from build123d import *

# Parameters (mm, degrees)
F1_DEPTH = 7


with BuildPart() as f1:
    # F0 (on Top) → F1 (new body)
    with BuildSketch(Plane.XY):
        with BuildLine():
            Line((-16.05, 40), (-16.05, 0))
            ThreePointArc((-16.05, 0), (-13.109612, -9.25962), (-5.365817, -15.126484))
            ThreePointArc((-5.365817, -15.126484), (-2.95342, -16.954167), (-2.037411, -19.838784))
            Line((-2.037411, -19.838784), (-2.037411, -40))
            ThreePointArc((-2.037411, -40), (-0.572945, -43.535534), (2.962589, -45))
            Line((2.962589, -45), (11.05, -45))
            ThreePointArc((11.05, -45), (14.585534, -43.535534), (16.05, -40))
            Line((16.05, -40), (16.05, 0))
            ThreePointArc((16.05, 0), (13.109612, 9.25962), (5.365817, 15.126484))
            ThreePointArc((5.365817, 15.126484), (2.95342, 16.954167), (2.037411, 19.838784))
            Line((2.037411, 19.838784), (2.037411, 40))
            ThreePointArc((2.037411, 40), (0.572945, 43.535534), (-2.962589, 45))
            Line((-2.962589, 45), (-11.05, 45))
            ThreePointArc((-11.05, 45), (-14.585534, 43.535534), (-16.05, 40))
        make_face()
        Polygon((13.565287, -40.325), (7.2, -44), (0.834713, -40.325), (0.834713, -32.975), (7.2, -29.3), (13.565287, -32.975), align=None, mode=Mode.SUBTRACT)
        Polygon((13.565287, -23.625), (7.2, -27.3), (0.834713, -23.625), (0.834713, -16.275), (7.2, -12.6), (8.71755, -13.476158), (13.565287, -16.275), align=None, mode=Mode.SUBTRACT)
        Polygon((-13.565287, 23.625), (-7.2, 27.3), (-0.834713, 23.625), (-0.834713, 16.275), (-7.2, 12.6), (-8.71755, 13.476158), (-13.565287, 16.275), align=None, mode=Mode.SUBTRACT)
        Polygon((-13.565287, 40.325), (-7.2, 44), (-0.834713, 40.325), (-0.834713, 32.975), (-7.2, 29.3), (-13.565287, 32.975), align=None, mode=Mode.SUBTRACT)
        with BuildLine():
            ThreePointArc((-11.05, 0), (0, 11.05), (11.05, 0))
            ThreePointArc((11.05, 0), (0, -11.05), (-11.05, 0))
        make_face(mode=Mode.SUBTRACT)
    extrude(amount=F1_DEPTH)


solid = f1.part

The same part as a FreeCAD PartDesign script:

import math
import FreeCAD as App
import Part
import Sketcher
from FreeCAD import Vector
Q = App.Units.Quantity

doc = App.newDocument("Part")
params = doc.addObject("Spreadsheet::Sheet", "Params")
for row, (alias, value) in enumerate([
    ("sketch1_radius", "5 mm"),
    ("sketch1_diameter", "22.1 mm"),
    ("sketch1_height", "40 mm"),
    ("sketch1_height2", "7.35 mm"),
    ("pad1_length", "7 mm"),
], start=1):
    params.set(f"A{row}", alias)
    params.set(f"B{row}", "=" + value)
    params.setAlias(f"B{row}", alias)

body = doc.addObject("PartDesign::Body", "Body")

# Sketch on XY plane
sketch1 = body.newObject("Sketcher::SketchObject", "Sketch")
sketch1.AttachmentSupport = (doc.getObject("XY_Plane"), [""])
sketch1.MapMode = "FlatFace"
sketch1.addGeometry(Part.LineSegment(Vector(-16.1, 40, 0), Vector(-16.1, 0, 0)), False)
sketch1.addGeometry(Part.ArcOfCircle(Part.Circle(Vector(0, 0, 0), Vector(0, 0, 1), 16.1), math.radians(-180), math.radians(-110)), False)
sketch1.addGeometry(Part.ArcOfCircle(Part.Circle(Vector(-7, -19.8, 0), Vector(0, 0, 1), 5), math.radians(0), math.radians(70)), False)
sketch1.addGeometry(Part.LineSegment(Vector(-2, -19.8, 0), Vector(-2, -40, 0)), False)
sketch1.addGeometry(Part.ArcOfCircle(Part.Circle(Vector(3, -40, 0), Vector(0, 0, 1), 5), math.radians(180), math.radians(270)), False)
sketch1.addGeometry(Part.LineSegment(Vector(3, -45, 0), Vector(11.1, -45, 0)), False)
sketch1.addGeometry(Part.ArcOfCircle(Part.Circle(Vector(11.1, -40, 0), Vector(0, 0, 1), 5), math.radians(-90), math.radians(0)), False)
sketch1.addGeometry(Part.LineSegment(Vector(16.1, -40, 0), Vector(16.1, 0, 0)), False)
sketch1.addGeometry(Part.ArcOfCircle(Part.Circle(Vector(0, 0, 0), Vector(0, 0, 1), 16.1), math.radians(0), math.radians(70)), False)
sketch1.addGeometry(Part.ArcOfCircle(Part.Circle(Vector(7, 19.8, 0), Vector(0, 0, 1), 5), math.radians(-180), math.radians(-110)), False)
sketch1.addGeometry(Part.LineSegment(Vector(2, 19.8, 0), Vector(2, 40, 0)), False)
sketch1.addGeometry(Part.ArcOfCircle(Part.Circle(Vector(-3, 40, 0), Vector(0, 0, 1), 5), math.radians(0), math.radians(90)), False)
sketch1.addGeometry(Part.LineSegment(Vector(-3, 45, 0), Vector(-11.1, 45, 0)), False)
sketch1.addGeometry(Part.ArcOfCircle(Part.Circle(Vector(-11.1, 40, 0), Vector(0, 0, 1), 5), math.radians(90), math.radians(180)), False)
sketch1.addGeometry(Part.LineSegment(Vector(13.6, -33, 0), Vector(13.6, -40.3, 0)), False)
sketch1.addGeometry(Part.LineSegment(Vector(13.6, -40.3, 0), Vector(7.2, -44, 0)), False)
sketch1.addGeometry(Part.LineSegment(Vector(7.2, -44, 0), Vector(0.8, -40.3, 0)), False)
sketch1.addGeometry(Part.LineSegment(Vector(0.8, -40.3, 0), Vector(0.8, -33, 0)), False)
sketch1.addGeometry(Part.LineSegment(Vector(0.8, -33, 0), Vector(7.2, -29.3, 0)), False)
sketch1.addGeometry(Part.LineSegment(Vector(7.2, -29.3, 0), Vector(13.6, -33, 0)), False)
sketch1.addGeometry(Part.LineSegment(Vector(13.6, -16.3, 0), Vector(13.6, -23.6, 0)), False)
sketch1.addGeometry(Part.LineSegment(Vector(13.6, -23.6, 0), Vector(7.2, -27.3, 0)), False)
sketch1.addGeometry(Part.LineSegment(Vector(7.2, -27.3, 0), Vector(0.8, -23.6, 0)), False)
sketch1.addGeometry(Part.LineSegment(Vector(0.8, -23.6, 0), Vector(0.8, -16.3, 0)), False)
sketch1.addGeometry(Part.LineSegment(Vector(0.8, -16.3, 0), Vector(7.2, -12.6, 0)), False)
sketch1.addGeometry(Part.LineSegment(Vector(7.2, -12.6, 0), Vector(8.7, -13.5, 0)), False)
sketch1.addGeometry(Part.LineSegment(Vector(8.7, -13.5, 0), Vector(13.6, -16.3, 0)), False)
sketch1.addGeometry(Part.LineSegment(Vector(-13.6, 16.3, 0), Vector(-13.6, 23.6, 0)), False)
sketch1.addGeometry(Part.LineSegment(Vector(-13.6, 23.6, 0), Vector(-7.2, 27.3, 0)), False)
sketch1.addGeometry(Part.LineSegment(Vector(-7.2, 27.3, 0), Vector(-0.8, 23.6, 0)), False)
sketch1.addGeometry(Part.LineSegment(Vector(-0.8, 23.6, 0), Vector(-0.8, 16.3, 0)), False)
sketch1.addGeometry(Part.LineSegment(Vector(-0.8, 16.3, 0), Vector(-7.2, 12.6, 0)), False)
sketch1.addGeometry(Part.LineSegment(Vector(-7.2, 12.6, 0), Vector(-8.7, 13.5, 0)), False)
sketch1.addGeometry(Part.LineSegment(Vector(-8.7, 13.5, 0), Vector(-13.6, 16.3, 0)), False)
sketch1.addGeometry(Part.LineSegment(Vector(-13.6, 33, 0), Vector(-13.6, 40.3, 0)), False)
sketch1.addGeometry(Part.LineSegment(Vector(-13.6, 40.3, 0), Vector(-7.2, 44, 0)), False)
sketch1.addGeometry(Part.LineSegment(Vector(-7.2, 44, 0), Vector(-0.8, 40.3, 0)), False)
sketch1.addGeometry(Part.LineSegment(Vector(-0.8, 40.3, 0), Vector(-0.8, 33, 0)), False)
sketch1.addGeometry(Part.LineSegment(Vector(-0.8, 33, 0), Vector(-7.2, 29.3, 0)), False)
sketch1.addGeometry(Part.LineSegment(Vector(-7.2, 29.3, 0), Vector(-13.6, 33, 0)), False)
sketch1.addGeometry(Part.Circle(Vector(0, 0, 0), Vector(0, 0, 1), 11.1), False)
sketch1.addConstraint(Sketcher.Constraint("Tangent", 0, 2, 1, 1))
sketch1.addConstraint(Sketcher.Constraint("Tangent", 1, 2, 2, 2))
sketch1.addConstraint(Sketcher.Constraint("Tangent", 2, 1, 3, 1))
sketch1.addConstraint(Sketcher.Constraint("Tangent", 3, 2, 4, 1))
sketch1.addConstraint(Sketcher.Constraint("Tangent", 4, 2, 5, 1))
sketch1.addConstraint(Sketcher.Constraint("Tangent", 5, 2, 6, 1))
sketch1.addConstraint(Sketcher.Constraint("Tangent", 6, 2, 7, 1))
sketch1.addConstraint(Sketcher.Constraint("Tangent", 7, 2, 8, 1))
sketch1.addConstraint(Sketcher.Constraint("Tangent", 8, 2, 9, 2))
sketch1.addConstraint(Sketcher.Constraint("Tangent", 9, 1, 10, 1))
sketch1.addConstraint(Sketcher.Constraint("Tangent", 10, 2, 11, 1))
sketch1.addConstraint(Sketcher.Constraint("Tangent", 11, 2, 12, 1))
sketch1.addConstraint(Sketcher.Constraint("Tangent", 12, 2, 13, 1))
sketch1.addConstraint(Sketcher.Constraint("Tangent", 13, 2, 0, 1))
sketch1.addConstraint(Sketcher.Constraint("Coincident", 14, 2, 15, 1))
sketch1.addConstraint(Sketcher.Constraint("Coincident", 15, 2, 16, 1))
sketch1.addConstraint(Sketcher.Constraint("Coincident", 16, 2, 17, 1))
sketch1.addConstraint(Sketcher.Constraint("Coincident", 17, 2, 18, 1))
sketch1.addConstraint(Sketcher.Constraint("Coincident", 18, 2, 19, 1))
sketch1.addConstraint(Sketcher.Constraint("Coincident", 19, 2, 14, 1))
sketch1.addConstraint(Sketcher.Constraint("Coincident", 20, 2, 21, 1))
sketch1.addConstraint(Sketcher.Constraint("Coincident", 21, 2, 22, 1))
sketch1.addConstraint(Sketcher.Constraint("Coincident", 22, 2, 23, 1))
sketch1.addConstraint(Sketcher.Constraint("Coincident", 23, 2, 24, 1))
sketch1.addConstraint(Sketcher.Constraint("Coincident", 24, 2, 25, 1))
sketch1.addConstraint(Sketcher.Constraint("Coincident", 25, 2, 26, 1))
sketch1.addConstraint(Sketcher.Constraint("Coincident", 26, 2, 20, 1))
sketch1.addConstraint(Sketcher.Constraint("Coincident", 27, 2, 28, 1))
sketch1.addConstraint(Sketcher.Constraint("Coincident", 28, 2, 29, 1))
sketch1.addConstraint(Sketcher.Constraint("Coincident", 29, 2, 30, 1))
sketch1.addConstraint(Sketcher.Constraint("Coincident", 30, 2, 31, 1))
sketch1.addConstraint(Sketcher.Constraint("Coincident", 31, 2, 32, 1))
sketch1.addConstraint(Sketcher.Constraint("Coincident", 32, 2, 33, 1))
sketch1.addConstraint(Sketcher.Constraint("Coincident", 33, 2, 27, 1))
sketch1.addConstraint(Sketcher.Constraint("Coincident", 34, 2, 35, 1))
sketch1.addConstraint(Sketcher.Constraint("Coincident", 35, 2, 36, 1))
sketch1.addConstraint(Sketcher.Constraint("Coincident", 36, 2, 37, 1))
sketch1.addConstraint(Sketcher.Constraint("Coincident", 37, 2, 38, 1))
sketch1.addConstraint(Sketcher.Constraint("Coincident", 38, 2, 39, 1))
sketch1.addConstraint(Sketcher.Constraint("Coincident", 39, 2, 34, 1))
sketch1.addConstraint(Sketcher.Constraint("Vertical", 0))
sketch1.addConstraint(Sketcher.Constraint("Vertical", 3))
sketch1.addConstraint(Sketcher.Constraint("Horizontal", 5))
sketch1.addConstraint(Sketcher.Constraint("Vertical", 7))
sketch1.addConstraint(Sketcher.Constraint("Vertical", 10))
sketch1.addConstraint(Sketcher.Constraint("Horizontal", 12))
sketch1.addConstraint(Sketcher.Constraint("Vertical", 14))
sketch1.addConstraint(Sketcher.Constraint("Vertical", 17))
sketch1.addConstraint(Sketcher.Constraint("Vertical", 20))
sketch1.addConstraint(Sketcher.Constraint("Vertical", 23))
sketch1.addConstraint(Sketcher.Constraint("Vertical", 27))
sketch1.addConstraint(Sketcher.Constraint("Vertical", 30))
sketch1.addConstraint(Sketcher.Constraint("Vertical", 34))
sketch1.addConstraint(Sketcher.Constraint("Vertical", 37))
sketch1.addConstraint(Sketcher.Constraint("Coincident", 1, 3, -1, 1))
sketch1.addConstraint(Sketcher.Constraint("Coincident", 8, 3, -1, 1))
sketch1.addConstraint(Sketcher.Constraint("Coincident", 40, 3, -1, 1))
sketch1.addConstraint(Sketcher.Constraint("Equal", 2, 4))
sketch1.addConstraint(Sketcher.Constraint("Equal", 4, 6))
sketch1.addConstraint(Sketcher.Constraint("Equal", 1, 8))
sketch1.addConstraint(Sketcher.Constraint("Equal", 6, 9))
sketch1.addConstraint(Sketcher.Constraint("Equal", 9, 11))
sketch1.addConstraint(Sketcher.Constraint("Equal", 11, 13))
sketch1.addConstraint(Sketcher.Constraint("Symmetric", 4, 3, 11, 3, -1, 1))
sketch1.addConstraint(Sketcher.Constraint("Symmetric", 20, 2, 27, 2, -1, 1))
sketch1.addConstraint(Sketcher.Constraint("Symmetric", 21, 2, 28, 2, -1, 1))
sketch1.addConstraint(Sketcher.Constraint("Symmetric", 22, 2, 29, 2, -1, 1))
sketch1.addConstraint(Sketcher.Constraint("Symmetric", 24, 2, 31, 2, -1, 1))
sketch1.addConstraint(Sketcher.Constraint("Symmetric", 25, 2, 32, 2, -1, 1))
sketch1.addConstraint(Sketcher.Constraint("Symmetric", 14, 2, 34, 2, -1, 1))
sketch1.addConstraint(Sketcher.Constraint("Symmetric", 15, 2, 35, 2, -1, 1))
sketch1.addConstraint(Sketcher.Constraint("Symmetric", 16, 2, 36, 2, -1, 1))
sketch1.addConstraint(Sketcher.Constraint("Symmetric", 18, 2, 38, 2, -1, 1))
sketch1.addConstraint(Sketcher.Constraint("Parallel", 15, 18))
sketch1.addConstraint(Sketcher.Constraint("Parallel", 16, 19))
sketch1.addConstraint(Sketcher.Constraint("Parallel", 18, 21))
sketch1.addConstraint(Sketcher.Constraint("Parallel", 19, 22))
sketch1.addConstraint(Sketcher.Constraint("Parallel", 21, 24))
sketch1.addConstraint(Sketcher.Constraint("Parallel", 22, 25))
sketch1.addConstraint(Sketcher.Constraint("Parallel", 25, 26))
sketch1.addConstraint(Sketcher.Constraint("Parallel", 28, 31))
sketch1.addConstraint(Sketcher.Constraint("Parallel", 32, 33))
sketch1.addConstraint(Sketcher.Constraint("Parallel", 35, 38))
sketch1.addConstraint(Sketcher.Constraint("Parallel", 36, 39))
sketch1.addConstraint(Sketcher.Constraint("Horizontal", 14, 2, 16, 2))
sketch1.addConstraint(Sketcher.Constraint("Horizontal", 17, 2, 19, 2))
sketch1.addConstraint(Sketcher.Constraint("Horizontal", 20, 2, 22, 2))
sketch1.addConstraint(Sketcher.Constraint("Horizontal", 23, 2, 26, 2))
sketch1.addConstraint(Sketcher.Constraint("Vertical", 15, 2, 18, 2))
sketch1.addConstraint(Sketcher.Constraint("Vertical", 19, 2, 20, 2))
sketch1.addConstraint(Sketcher.Constraint("Vertical", 18, 2, 21, 2))
sketch1.addConstraint(Sketcher.Constraint("Equal", 17, 20))
sketch1.addConstraint(Sketcher.Constraint("Radius", 2, 5.0))
sketch1.addConstraint(Sketcher.Constraint("Diameter", 40, 22.1))
sketch1.addConstraint(Sketcher.Constraint("DistanceY", 0, 2, 0, 1, 40.0))
sketch1.addConstraint(Sketcher.Constraint("Angle", 15, Q("-150.000001 deg")))
sketch1.addConstraint(Sketcher.Constraint("DistanceY", 15, 2, -1, 1, 44.0))
sketch1.addConstraint(Sketcher.Constraint("DistanceY", 18, 2, 21, 2, 2.0))
sketch1.addConstraint(Sketcher.Constraint("DistanceY", 14, 2, 14, 1, 7.35))
sketch1.addConstraint(Sketcher.Constraint("DistanceX", -1, 1, 15, 2, 7.2))
sketch1.addConstraint(Sketcher.Constraint("DistanceY", 18, 2, -1, 1, 29.3))
sketch1.addConstraint(Sketcher.Constraint("DistanceX", -1, 1, 6, 3, 11.05))
sketch1.addConstraint(Sketcher.Constraint("DistanceX", 5, 1, 5, 2, 8.087411))
sketch1.addConstraint(Sketcher.Constraint("DistanceX", -1, 1, 25, 2, 8.71755))
sketch1.setExpression("Constraints[92]", "Params.sketch1_radius")
sketch1.setExpression("Constraints[93]", "Params.sketch1_diameter")
sketch1.setExpression("Constraints[94]", "Params.sketch1_height")
sketch1.setExpression("Constraints[98]", "Params.sketch1_height2")
pad1 = body.newObject("PartDesign::Pad", "Pad")
pad1.Profile = sketch1
pad1.setExpression("Length", "Params.pad1_length")

doc.recompute()
